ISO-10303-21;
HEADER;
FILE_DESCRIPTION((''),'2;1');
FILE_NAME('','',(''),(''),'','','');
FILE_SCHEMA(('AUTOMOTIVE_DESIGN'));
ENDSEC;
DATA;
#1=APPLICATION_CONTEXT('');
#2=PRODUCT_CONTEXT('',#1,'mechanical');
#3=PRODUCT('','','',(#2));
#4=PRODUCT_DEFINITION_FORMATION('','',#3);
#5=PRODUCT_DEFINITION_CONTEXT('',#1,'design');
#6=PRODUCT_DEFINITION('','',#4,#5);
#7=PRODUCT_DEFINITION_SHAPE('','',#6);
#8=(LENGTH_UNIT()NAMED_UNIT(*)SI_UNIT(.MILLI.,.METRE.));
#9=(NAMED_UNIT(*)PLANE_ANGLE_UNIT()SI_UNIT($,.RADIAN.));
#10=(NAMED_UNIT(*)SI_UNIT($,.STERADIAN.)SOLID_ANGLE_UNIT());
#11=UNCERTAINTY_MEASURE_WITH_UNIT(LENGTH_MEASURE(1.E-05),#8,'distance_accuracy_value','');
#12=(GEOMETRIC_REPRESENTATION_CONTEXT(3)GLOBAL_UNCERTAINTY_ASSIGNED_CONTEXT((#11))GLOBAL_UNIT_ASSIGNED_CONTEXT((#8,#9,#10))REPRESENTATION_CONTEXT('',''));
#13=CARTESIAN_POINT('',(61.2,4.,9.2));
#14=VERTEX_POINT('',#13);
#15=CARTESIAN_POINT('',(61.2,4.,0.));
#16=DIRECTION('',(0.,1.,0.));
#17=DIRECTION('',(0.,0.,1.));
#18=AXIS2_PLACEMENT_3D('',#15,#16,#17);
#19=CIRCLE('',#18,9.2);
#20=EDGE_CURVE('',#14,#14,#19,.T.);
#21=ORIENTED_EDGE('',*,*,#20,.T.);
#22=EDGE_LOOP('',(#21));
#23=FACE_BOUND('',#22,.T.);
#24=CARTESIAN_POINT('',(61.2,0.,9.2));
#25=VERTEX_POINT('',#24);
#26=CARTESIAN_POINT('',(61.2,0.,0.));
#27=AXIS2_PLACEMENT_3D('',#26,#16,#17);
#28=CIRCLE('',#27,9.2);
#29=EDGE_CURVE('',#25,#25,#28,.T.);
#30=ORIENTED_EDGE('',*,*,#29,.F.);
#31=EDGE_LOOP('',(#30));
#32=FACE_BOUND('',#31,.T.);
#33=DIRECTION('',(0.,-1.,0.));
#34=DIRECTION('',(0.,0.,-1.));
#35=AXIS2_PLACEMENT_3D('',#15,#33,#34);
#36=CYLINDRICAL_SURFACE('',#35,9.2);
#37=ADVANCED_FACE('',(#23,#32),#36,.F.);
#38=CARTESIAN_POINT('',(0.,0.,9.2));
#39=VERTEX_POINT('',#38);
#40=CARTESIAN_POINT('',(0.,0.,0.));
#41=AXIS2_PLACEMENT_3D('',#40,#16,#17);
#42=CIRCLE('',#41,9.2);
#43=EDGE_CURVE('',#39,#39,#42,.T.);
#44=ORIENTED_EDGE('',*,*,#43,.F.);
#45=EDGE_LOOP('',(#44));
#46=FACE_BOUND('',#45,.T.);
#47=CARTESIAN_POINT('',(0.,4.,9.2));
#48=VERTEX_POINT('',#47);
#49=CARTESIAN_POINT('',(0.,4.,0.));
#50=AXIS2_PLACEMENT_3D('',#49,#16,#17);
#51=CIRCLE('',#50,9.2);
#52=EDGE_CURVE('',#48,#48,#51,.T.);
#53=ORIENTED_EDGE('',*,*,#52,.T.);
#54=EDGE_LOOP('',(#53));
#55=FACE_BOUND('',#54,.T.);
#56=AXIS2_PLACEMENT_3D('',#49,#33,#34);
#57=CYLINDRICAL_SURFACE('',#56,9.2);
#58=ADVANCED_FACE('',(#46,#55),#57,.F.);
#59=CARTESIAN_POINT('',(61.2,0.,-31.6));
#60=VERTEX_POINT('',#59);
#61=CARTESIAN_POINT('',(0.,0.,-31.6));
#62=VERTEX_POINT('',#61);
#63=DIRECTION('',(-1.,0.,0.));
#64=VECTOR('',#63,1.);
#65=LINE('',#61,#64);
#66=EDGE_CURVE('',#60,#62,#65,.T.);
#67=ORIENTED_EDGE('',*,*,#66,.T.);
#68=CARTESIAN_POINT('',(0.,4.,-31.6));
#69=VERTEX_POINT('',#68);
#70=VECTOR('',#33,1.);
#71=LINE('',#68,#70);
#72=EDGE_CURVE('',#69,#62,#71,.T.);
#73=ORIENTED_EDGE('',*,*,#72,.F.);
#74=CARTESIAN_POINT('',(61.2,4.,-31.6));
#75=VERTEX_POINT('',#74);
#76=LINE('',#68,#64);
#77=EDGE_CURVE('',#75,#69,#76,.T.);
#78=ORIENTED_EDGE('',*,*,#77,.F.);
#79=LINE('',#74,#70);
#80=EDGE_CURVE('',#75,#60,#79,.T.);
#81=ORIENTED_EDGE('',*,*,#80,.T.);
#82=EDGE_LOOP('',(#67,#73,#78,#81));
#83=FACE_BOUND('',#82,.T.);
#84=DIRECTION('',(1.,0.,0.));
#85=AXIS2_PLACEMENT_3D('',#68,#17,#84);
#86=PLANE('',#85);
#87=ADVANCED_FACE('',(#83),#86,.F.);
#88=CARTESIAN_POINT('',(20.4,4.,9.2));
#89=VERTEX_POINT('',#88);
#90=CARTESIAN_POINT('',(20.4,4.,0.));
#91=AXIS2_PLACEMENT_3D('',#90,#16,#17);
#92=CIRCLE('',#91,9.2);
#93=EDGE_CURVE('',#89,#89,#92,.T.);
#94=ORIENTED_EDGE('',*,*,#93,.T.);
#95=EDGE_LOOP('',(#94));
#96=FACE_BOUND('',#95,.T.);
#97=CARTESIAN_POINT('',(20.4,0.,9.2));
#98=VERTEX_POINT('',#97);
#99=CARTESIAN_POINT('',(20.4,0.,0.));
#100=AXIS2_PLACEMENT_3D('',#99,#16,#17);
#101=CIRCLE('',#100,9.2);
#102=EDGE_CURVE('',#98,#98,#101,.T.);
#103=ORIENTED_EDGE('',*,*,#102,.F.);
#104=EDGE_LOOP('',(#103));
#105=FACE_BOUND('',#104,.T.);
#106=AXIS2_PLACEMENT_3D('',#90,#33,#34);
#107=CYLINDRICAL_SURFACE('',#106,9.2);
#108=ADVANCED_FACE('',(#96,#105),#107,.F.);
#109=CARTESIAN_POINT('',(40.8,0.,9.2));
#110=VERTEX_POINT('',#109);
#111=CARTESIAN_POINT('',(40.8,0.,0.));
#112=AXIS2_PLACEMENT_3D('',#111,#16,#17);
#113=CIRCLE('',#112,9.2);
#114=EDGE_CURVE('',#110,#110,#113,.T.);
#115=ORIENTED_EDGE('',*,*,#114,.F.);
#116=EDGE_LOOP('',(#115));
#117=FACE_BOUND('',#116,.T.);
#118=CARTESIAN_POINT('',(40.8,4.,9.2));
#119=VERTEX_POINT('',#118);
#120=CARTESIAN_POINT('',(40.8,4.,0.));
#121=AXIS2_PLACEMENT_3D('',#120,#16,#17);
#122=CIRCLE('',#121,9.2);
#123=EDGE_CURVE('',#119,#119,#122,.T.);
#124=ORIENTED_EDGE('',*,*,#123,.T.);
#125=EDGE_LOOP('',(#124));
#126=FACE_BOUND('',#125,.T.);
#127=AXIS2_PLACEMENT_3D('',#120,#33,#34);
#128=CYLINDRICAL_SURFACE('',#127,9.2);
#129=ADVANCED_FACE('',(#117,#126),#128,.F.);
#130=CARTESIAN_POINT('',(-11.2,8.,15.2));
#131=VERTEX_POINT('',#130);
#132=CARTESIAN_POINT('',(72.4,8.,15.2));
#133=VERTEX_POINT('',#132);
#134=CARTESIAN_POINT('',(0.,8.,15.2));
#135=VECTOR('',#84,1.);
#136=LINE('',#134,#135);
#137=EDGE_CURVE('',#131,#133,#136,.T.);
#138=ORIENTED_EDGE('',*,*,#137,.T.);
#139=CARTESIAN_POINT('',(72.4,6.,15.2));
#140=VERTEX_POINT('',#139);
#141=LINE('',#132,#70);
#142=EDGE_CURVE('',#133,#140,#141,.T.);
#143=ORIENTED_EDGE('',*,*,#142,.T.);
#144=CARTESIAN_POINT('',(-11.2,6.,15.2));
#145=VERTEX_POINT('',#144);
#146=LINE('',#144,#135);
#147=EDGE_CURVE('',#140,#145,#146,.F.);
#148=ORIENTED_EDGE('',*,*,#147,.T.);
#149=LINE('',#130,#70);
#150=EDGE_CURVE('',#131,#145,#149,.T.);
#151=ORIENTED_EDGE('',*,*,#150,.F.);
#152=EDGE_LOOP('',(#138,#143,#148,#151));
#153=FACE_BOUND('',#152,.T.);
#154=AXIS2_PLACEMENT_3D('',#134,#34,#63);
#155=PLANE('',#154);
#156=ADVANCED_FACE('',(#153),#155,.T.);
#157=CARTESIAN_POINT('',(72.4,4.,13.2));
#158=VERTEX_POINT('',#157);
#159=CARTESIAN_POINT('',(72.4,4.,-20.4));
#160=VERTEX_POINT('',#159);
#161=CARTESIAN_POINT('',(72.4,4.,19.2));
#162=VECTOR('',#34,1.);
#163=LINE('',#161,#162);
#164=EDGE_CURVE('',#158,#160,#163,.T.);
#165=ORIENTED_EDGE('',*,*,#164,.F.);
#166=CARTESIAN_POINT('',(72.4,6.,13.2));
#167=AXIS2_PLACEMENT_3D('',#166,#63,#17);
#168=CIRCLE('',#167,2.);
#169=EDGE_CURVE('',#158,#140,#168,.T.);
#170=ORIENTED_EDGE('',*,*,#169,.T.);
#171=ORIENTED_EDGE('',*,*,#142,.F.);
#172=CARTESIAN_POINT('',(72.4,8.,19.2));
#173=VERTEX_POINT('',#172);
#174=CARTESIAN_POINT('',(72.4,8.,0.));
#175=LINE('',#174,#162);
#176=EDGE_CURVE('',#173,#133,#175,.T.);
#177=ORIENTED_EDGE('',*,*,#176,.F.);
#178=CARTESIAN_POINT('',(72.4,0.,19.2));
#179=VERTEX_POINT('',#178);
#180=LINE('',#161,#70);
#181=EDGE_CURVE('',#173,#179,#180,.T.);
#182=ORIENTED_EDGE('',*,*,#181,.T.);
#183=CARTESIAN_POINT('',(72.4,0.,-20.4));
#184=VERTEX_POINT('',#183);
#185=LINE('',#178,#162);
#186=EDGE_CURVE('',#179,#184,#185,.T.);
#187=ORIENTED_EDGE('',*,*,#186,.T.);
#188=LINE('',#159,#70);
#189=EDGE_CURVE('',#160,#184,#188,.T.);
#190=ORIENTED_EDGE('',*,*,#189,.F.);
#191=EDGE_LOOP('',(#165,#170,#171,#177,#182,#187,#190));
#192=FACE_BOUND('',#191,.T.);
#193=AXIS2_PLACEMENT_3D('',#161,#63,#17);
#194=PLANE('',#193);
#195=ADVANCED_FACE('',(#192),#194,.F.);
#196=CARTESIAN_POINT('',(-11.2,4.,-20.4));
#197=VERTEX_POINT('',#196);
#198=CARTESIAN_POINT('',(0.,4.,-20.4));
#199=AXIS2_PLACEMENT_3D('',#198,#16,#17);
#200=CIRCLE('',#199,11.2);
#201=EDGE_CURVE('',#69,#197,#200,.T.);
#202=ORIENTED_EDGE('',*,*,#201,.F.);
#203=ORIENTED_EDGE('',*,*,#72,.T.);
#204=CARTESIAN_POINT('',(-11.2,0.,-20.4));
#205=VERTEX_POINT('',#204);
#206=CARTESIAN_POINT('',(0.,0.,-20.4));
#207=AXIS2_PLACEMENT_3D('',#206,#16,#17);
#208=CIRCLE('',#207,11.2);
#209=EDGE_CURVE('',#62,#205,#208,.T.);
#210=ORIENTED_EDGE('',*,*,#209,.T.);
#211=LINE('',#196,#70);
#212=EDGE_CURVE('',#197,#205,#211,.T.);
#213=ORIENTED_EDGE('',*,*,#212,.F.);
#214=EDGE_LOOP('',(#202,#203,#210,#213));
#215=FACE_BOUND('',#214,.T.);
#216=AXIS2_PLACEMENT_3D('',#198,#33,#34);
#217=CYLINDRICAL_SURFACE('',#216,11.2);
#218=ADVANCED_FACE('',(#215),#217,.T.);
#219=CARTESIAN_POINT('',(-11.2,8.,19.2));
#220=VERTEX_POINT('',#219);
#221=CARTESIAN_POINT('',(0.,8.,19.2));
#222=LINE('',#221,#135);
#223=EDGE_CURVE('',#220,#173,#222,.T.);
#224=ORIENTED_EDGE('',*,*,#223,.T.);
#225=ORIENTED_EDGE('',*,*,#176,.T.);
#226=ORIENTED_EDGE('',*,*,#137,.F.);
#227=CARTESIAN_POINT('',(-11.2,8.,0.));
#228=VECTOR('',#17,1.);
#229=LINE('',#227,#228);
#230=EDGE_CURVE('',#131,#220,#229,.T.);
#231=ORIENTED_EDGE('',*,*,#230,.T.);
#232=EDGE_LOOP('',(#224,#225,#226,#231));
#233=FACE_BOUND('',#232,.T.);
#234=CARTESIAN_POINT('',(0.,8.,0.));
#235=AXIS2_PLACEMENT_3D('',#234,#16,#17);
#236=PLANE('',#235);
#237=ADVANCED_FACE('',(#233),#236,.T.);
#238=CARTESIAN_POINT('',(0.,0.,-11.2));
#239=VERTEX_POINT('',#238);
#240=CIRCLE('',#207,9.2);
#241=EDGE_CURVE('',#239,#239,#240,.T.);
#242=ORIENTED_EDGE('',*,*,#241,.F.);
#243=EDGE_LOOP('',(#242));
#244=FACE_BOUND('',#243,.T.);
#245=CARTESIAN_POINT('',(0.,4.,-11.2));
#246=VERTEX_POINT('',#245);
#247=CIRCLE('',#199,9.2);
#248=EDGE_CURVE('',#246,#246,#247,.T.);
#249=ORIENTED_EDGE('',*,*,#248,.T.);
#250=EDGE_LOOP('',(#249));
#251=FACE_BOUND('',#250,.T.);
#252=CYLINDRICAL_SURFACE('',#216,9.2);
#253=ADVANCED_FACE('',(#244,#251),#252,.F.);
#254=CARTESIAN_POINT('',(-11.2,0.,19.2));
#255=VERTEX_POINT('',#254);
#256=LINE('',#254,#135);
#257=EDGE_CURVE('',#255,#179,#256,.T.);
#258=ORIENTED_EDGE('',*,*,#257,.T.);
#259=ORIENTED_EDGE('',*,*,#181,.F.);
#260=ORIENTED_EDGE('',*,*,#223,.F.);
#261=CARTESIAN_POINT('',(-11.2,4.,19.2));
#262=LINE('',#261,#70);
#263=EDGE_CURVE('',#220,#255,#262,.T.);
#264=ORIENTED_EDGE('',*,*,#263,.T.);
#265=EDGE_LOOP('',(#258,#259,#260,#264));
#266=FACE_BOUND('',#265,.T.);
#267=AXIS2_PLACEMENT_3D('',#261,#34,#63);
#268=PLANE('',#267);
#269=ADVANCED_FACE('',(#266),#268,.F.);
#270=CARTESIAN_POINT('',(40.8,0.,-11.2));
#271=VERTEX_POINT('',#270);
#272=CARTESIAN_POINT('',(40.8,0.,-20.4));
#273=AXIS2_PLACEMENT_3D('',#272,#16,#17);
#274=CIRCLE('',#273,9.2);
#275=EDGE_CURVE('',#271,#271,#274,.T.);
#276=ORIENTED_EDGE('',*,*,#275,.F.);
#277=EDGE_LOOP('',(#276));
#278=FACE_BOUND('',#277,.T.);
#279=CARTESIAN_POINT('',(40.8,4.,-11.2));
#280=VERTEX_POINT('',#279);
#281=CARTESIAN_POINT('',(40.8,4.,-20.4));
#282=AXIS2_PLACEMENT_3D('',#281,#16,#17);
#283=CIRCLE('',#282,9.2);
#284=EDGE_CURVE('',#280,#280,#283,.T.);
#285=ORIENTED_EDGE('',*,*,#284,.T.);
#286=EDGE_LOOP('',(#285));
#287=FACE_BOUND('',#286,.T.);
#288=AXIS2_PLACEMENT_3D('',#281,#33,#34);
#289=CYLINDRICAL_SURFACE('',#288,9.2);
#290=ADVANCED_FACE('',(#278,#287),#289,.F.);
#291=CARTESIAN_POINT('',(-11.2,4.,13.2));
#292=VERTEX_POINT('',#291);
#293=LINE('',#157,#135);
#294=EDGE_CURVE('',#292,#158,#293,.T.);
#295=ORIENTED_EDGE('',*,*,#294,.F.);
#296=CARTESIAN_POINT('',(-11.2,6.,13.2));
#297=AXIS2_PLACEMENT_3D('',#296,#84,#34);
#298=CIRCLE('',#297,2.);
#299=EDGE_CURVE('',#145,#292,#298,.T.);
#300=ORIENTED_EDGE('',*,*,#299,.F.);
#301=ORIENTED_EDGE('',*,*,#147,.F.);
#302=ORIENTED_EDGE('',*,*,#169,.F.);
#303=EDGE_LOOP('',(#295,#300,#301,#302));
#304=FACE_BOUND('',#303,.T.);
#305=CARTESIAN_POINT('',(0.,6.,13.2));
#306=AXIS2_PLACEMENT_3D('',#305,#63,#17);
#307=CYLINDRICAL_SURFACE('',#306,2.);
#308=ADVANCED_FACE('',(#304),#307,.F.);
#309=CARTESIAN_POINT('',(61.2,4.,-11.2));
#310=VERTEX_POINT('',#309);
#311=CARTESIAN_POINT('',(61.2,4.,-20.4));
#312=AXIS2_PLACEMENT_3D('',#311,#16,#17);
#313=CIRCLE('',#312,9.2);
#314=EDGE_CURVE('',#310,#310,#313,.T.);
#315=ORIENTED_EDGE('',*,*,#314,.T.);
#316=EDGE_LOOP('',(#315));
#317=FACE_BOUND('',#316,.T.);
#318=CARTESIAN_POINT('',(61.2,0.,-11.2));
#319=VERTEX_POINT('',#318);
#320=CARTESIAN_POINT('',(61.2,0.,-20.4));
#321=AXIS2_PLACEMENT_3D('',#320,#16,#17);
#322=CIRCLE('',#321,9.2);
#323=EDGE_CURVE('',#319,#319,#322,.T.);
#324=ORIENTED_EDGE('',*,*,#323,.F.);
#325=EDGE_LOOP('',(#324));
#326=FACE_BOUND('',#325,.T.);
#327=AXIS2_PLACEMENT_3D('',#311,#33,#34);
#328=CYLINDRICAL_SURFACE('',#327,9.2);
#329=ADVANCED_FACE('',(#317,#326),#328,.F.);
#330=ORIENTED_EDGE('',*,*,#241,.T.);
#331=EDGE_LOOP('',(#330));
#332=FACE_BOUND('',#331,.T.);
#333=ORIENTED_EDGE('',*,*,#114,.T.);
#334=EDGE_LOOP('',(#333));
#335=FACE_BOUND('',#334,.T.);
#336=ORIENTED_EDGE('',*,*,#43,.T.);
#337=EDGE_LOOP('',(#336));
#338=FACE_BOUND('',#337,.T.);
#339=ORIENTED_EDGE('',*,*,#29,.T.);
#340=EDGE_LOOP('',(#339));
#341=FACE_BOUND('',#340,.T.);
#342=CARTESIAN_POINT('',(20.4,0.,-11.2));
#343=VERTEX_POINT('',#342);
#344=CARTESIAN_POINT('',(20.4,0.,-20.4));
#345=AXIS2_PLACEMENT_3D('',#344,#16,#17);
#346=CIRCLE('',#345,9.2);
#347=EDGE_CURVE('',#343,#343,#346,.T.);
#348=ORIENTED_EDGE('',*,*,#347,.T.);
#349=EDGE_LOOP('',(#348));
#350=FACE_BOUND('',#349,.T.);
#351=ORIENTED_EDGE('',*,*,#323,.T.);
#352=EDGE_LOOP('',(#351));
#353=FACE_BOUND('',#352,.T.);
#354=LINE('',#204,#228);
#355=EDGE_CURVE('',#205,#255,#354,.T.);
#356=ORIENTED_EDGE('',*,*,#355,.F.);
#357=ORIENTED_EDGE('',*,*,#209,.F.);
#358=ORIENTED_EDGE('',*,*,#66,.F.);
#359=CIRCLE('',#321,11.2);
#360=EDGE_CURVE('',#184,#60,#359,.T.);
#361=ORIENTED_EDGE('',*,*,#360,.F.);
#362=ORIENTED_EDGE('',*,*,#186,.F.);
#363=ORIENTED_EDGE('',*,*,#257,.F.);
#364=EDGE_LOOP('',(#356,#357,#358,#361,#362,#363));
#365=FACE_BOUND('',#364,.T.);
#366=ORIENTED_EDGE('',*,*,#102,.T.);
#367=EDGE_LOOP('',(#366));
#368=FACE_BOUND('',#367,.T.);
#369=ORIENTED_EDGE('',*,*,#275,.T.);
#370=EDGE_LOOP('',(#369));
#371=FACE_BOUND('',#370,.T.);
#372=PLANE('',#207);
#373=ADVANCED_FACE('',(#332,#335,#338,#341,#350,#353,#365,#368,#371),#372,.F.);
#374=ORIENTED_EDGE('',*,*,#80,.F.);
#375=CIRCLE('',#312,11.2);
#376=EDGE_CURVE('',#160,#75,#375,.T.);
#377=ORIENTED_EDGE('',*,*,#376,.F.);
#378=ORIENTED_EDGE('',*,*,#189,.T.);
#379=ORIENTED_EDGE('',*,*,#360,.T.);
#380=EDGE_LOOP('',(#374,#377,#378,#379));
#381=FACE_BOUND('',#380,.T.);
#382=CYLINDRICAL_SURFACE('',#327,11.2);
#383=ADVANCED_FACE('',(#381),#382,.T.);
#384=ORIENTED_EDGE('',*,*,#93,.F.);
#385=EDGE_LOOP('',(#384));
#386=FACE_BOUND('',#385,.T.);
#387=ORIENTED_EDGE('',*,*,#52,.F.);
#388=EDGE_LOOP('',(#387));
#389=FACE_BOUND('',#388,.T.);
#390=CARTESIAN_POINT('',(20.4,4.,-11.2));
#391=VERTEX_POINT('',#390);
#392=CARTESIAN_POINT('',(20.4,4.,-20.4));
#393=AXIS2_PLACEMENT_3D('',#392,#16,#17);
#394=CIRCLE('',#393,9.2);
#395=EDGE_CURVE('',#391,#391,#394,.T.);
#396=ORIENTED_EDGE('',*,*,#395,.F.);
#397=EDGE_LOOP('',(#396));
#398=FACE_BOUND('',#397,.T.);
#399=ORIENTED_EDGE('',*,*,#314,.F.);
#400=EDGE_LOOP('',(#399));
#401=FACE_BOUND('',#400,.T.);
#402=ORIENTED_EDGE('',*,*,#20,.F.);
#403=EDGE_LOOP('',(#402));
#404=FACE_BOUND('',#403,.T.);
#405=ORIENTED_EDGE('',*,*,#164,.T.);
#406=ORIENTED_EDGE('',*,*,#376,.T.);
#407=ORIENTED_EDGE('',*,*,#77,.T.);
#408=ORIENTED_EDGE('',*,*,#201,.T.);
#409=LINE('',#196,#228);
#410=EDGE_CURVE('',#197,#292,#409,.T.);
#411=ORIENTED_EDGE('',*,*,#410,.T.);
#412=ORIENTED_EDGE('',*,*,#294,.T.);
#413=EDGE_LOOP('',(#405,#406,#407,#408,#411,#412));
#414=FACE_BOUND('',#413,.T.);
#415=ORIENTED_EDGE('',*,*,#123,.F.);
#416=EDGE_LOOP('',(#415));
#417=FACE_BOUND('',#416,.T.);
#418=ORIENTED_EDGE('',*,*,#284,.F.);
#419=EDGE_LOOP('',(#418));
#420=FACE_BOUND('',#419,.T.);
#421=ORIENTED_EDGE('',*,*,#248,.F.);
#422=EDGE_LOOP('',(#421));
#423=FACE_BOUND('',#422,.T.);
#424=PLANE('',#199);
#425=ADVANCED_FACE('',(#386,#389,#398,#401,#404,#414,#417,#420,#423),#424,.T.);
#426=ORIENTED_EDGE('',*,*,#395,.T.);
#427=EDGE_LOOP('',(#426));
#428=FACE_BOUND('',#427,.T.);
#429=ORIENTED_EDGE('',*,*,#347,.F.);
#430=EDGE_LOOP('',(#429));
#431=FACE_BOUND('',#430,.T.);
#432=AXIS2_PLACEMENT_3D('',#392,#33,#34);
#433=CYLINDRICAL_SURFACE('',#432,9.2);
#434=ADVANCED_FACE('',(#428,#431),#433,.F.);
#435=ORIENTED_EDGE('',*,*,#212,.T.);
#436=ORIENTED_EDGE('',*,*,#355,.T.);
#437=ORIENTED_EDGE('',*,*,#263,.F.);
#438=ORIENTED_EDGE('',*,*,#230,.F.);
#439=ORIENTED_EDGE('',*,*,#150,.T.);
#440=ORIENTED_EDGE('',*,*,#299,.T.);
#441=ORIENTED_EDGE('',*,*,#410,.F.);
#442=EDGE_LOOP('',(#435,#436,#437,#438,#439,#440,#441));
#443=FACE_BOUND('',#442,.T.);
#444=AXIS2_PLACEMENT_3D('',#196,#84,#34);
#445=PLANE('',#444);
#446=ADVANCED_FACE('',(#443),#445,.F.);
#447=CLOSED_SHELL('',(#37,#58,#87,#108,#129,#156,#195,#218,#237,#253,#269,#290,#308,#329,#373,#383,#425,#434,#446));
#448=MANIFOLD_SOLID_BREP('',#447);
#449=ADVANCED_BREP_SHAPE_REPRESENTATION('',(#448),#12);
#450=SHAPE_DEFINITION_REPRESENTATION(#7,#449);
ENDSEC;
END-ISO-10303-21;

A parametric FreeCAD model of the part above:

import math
import FreeCAD as App
import Part
import Sketcher
from FreeCAD import Vector
Q = App.Units.Quantity


def edges_at(feature, points):
    """Names of the edges that pass closest to the given points."""
    edges = feature.Shape.Edges
    near = lambda p: min(range(len(edges)), key=lambda i: edges[i].distToShape(Part.Vertex(*p))[0])
    return sorted({f"Edge{near(p) + 1}" for p in points})

doc = App.newDocument("Part")
params = doc.addObject("Spreadsheet::Sheet", "Params")
for row, (alias, value) in enumerate([
    ("sketch1_diameter", "18.4 mm"),
    ("sketch1_radius", "11.2 mm"),
    ("sketch1_width", "83.6 mm"),
    ("sketch1_height", "39.6 mm"),
    ("pad1_length", "4 mm"),
    ("sketch2_height", "4 mm"),
    ("sketch2_width", "83.6 mm"),
    ("pad2_length", "4 mm"),
    ("fillet_radius", "2 mm"),
], start=1):
    params.set(f"A{row}", alias)
    params.set(f"B{row}", "=" + value)
    params.setAlias(f"B{row}", alias)

body = doc.addObject("PartDesign::Body", "Body")

# Sketch on XZ plane
sketch1 = body.newObject("Sketcher::SketchObject", "Sketch")
sketch1.AttachmentSupport = (doc.getObject("XZ_Plane"), [""])
sketch1.MapMode = "FlatFace"
sketch1.addGeometry([
    Part.LineSegment(Vector(-11, -20, 0), Vector(-11, 19, 0)),  # 0
    Part.LineSegment(Vector(-11, 19, 0), Vector(72, 19, 0)),  # 1
    Part.LineSegment(Vector(72, 19, 0), Vector(72, -20, 0)),  # 2
    Part.ArcOfCircle(Part.Circle(Vector(61, -20, 0), Vector(0, 0, 1), 11), math.radians(-90), math.radians(0)),  # 3
    Part.LineSegment(Vector(61, -32, 0), Vector(0, -32, 0)),  # 4
    Part.ArcOfCircle(Part.Circle(Vector(0, -20, 0), Vector(0, 0, 1), 11), math.radians(-180), math.radians(-90)),  # 5
    Part.Circle(Vector(0, 0, 0), Vector(0, 0, 1), 9),  # 6
    Part.Circle(Vector(20, 0, 0), Vector(0, 0, 1), 9),  # 7
    Part.Circle(Vector(41, 0, 0), Vector(0, 0, 1), 9),  # 8
    Part.Circle(Vector(61, 0, 0), Vector(0, 0, 1), 9),  # 9
    Part.Circle(Vector(0, -20, 0), Vector(0, 0, 1), 9),  # 10
    Part.Circle(Vector(20, -20, 0), Vector(0, 0, 1), 9),  # 11
    Part.Circle(Vector(41, -20, 0), Vector(0, 0, 1), 9),  # 12
    Part.Circle(Vector(61, -20, 0), Vector(0, 0, 1), 9),  # 13
], False)
sketch1.addConstraint([
    Sketcher.Constraint("Coincident", 0, 2, 1, 1),
    Sketcher.Constraint("Coincident", 1, 2, 2, 1),
    Sketcher.Constraint("Tangent", 2, 2, 3, 2),
    Sketcher.Constraint("Tangent", 3, 1, 4, 1),
    Sketcher.Constraint("Tangent", 4, 2, 5, 2),
    Sketcher.Constraint("Tangent", 5, 1, 0, 1),
    Sketcher.Constraint("Vertical", 0),
    Sketcher.Constraint("Horizontal", 1),
    Sketcher.Constraint("Vertical", 2),
    Sketcher.Constraint("Horizontal", 4),
    Sketcher.Constraint("Coincident", 6, 3, -1, 1),
    Sketcher.Constraint("Coincident", 10, 3, 5, 3),
    Sketcher.Constraint("Coincident", 13, 3, 3, 3),
    Sketcher.Constraint("Equal", 3, 5),
    Sketcher.Constraint("Equal", 6, 7),
    Sketcher.Constraint("Equal", 7, 8),
    Sketcher.Constraint("Equal", 8, 9),
    Sketcher.Constraint("Equal", 9, 10),
    Sketcher.Constraint("Equal", 10, 11),
    Sketcher.Constraint("Equal", 11, 12),
    Sketcher.Constraint("Equal", 12, 13),
    Sketcher.Constraint("PointOnObject", 5, 3, -2),
    Sketcher.Constraint("PointOnObject", 7, 3, -1),
    Sketcher.Constraint("PointOnObject", 8, 3, -1),
    Sketcher.Constraint("PointOnObject", 9, 3, -1),
    Sketcher.Constraint("Horizontal", 10, 3, 11, 3),
    Sketcher.Constraint("Horizontal", 11, 3, 12, 3),
    Sketcher.Constraint("Vertical", 3, 3, 9, 3),
    Sketcher.Constraint("Vertical", 7, 3, 11, 3),
    Sketcher.Constraint("Vertical", 8, 3, 12, 3),
    Sketcher.Constraint("Diameter", 6, Q("18.4 mm")),
    Sketcher.Constraint("Radius", 3, Q("11.2 mm")),
    Sketcher.Constraint("DistanceX", 1, 1, 1, 2, Q("83.6 mm")),
    Sketcher.Constraint("DistanceY", 0, 1, 0, 2, Q("39.6 mm")),
    Sketcher.Constraint("DistanceY", 3, 3, -1, 1, Q("20.4 mm")),
    Sketcher.Constraint("DistanceX", -1, 1, 7, 3, Q("20.4 mm")),
    Sketcher.Constraint("DistanceX", -1, 1, 8, 3, Q("40.8 mm")),
])
sketch1.setExpression("Constraints[30]", "Params.sketch1_diameter")
sketch1.setExpression("Constraints[31]", "Params.sketch1_radius")
sketch1.setExpression("Constraints[32]", "Params.sketch1_width")
sketch1.setExpression("Constraints[33]", "Params.sketch1_height")
pad1 = body.newObject("PartDesign::Pad", "Pad")
pad1.Profile = sketch1
pad1.setExpression("Length", "Params.pad1_length")
pad1.Reversed = True

# Sketch on XZ plane
sketch2 = body.newObject("Sketcher::SketchObject", "Sketch001")
sketch2.AttachmentSupport = (doc.getObject("XZ_Plane"), [""])
sketch2.MapMode = "FlatFace"
sketch2.AttachmentOffset = App.Placement(Vector(0, 0, -4), App.Rotation())
sketch2.addGeometry([
    Part.LineSegment(Vector(-11.2, 15.2, 0), Vector(-11.2, 19.2, 0)),
    Part.LineSegment(Vector(-11.2, 19.2, 0), Vector(72.4, 19.2, 0)),
    Part.LineSegment(Vector(72.4, 19.2, 0), Vector(72.4, 15.2, 0)),
    Part.LineSegment(Vector(72.4, 15.2, 0), Vector(-11.2, 15.2, 0)),
], False)
sketch2.addConstraint([
    Sketcher.Constraint("Coincident", 0, 2, 1, 1),
    Sketcher.Constraint("Coincident", 1, 2, 2, 1),
    Sketcher.Constraint("Coincident", 2, 2, 3, 1),
    Sketcher.Constraint("Coincident", 3, 2, 0, 1),
    Sketcher.Constraint("Vertical", 0),
    Sketcher.Constraint("Horizontal", 1),
    Sketcher.Constraint("Vertical", 2),
    Sketcher.Constraint("Horizontal", 3),
    Sketcher.Constraint("DistanceY", 0, 1, 0, 2, Q("4 mm")),
    Sketcher.Constraint("DistanceX", 1, 1, 1, 2, Q("83.6 mm")),
    Sketcher.Constraint("DistanceX", 0, 2, -1, 1, Q("11.2 mm")),
    Sketcher.Constraint("DistanceY", -1, 1, 0, 2, Q("19.2 mm")),
])
sketch2.setExpression("Constraints[8]", "Params.sketch2_height")
sketch2.setExpression("Constraints[9]", "Params.sketch2_width")
pad2 = body.newObject("PartDesign::Pad", "Pad001")
pad2.Profile = sketch2
pad2.setExpression("Length", "Params.pad2_length")
pad2.Reversed = True
doc.recompute()

fillet = body.newObject("PartDesign::Fillet", "Fillet")
fillet.Base = (pad2, edges_at(pad2, [(30.6, 4, 15.2)]))
fillet.setExpression("Radius", "Params.fillet_radius")

doc.recompute()
